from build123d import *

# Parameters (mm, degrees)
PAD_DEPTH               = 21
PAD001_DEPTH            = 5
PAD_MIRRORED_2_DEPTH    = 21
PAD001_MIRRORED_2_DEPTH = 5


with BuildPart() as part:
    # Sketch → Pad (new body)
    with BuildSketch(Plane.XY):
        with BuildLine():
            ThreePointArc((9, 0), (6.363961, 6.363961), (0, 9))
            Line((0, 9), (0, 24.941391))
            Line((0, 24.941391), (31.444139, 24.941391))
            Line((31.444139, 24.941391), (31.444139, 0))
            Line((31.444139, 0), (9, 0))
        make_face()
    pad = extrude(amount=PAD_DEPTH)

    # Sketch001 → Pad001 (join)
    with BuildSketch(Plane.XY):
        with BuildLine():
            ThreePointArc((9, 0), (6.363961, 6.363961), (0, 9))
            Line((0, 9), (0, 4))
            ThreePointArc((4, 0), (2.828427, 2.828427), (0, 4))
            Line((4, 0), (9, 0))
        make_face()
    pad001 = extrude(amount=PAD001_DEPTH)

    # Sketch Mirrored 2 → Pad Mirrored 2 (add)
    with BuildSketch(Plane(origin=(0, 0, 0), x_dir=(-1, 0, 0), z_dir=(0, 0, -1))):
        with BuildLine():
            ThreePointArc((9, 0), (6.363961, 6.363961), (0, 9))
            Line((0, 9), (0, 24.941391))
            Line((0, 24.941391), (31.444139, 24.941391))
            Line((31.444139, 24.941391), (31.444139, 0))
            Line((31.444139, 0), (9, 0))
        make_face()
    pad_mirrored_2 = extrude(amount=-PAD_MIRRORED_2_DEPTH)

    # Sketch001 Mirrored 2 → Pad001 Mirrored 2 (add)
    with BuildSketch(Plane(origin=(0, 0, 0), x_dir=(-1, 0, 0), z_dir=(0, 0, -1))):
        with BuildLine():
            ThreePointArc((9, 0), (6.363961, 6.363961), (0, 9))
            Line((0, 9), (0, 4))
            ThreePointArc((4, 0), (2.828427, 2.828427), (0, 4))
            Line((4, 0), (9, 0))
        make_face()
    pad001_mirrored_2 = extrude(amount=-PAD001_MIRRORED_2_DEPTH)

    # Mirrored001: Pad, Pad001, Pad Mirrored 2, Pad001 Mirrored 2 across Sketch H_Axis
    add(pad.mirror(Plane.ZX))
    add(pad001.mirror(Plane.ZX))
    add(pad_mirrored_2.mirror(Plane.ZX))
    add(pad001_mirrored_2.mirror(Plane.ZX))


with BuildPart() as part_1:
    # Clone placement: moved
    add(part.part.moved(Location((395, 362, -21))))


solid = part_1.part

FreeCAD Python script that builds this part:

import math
import FreeCAD as App
import Part
import Sketcher

V = App.Vector

doc = App.newDocument("Part")
body = doc.addObject("PartDesign::Body", "Body")

# Sketch on XY plane
sketch1 = doc.addObject("Sketcher::SketchObject", "Sketch")
body.addObject(sketch1)
sketch1.AttachmentSupport = (doc.XY_Plane, [""])
sketch1.MapMode = "FlatFace"
sketch1.addGeometry([
    Part.ArcOfCircle(Part.Circle(V(0, 0, 0), V(0, 0, 1), 9), math.radians(0.000001), math.radians(89.999999)),  # 0
    Part.LineSegment(V(9, 0, 0), V(31.444139, 0, 0)),  # 1
    Part.LineSegment(V(31.444139, 0, 0), V(31.444139, 24.941391, 0)),  # 2
    Part.LineSegment(V(31.444139, 24.941391, 0), V(0, 24.941391, 0)),  # 3
    Part.LineSegment(V(0, 24.941391, 0), V(0, 9, 0)),  # 4
], False)
sketch1.addConstraint([
    Sketcher.Constraint("Coincident", 0, 1, 1, 1),
    Sketcher.Constraint("Coincident", 1, 2, 2, 1),
    Sketcher.Constraint("Coincident", 2, 2, 3, 1),
    Sketcher.Constraint("Coincident", 3, 2, 4, 1),
    Sketcher.Constraint("Coincident", 4, 2, 0, 2),
    Sketcher.Constraint("Horizontal", 1),
    Sketcher.Constraint("Vertical", 2),
    Sketcher.Constraint("Horizontal", 3),
    Sketcher.Constraint("Vertical", 4),
    Sketcher.Constraint("Coincident", 0, 3, -1, 1),
    Sketcher.Constraint("PointOnObject", 0, 1, -1),
    Sketcher.Constraint("PointOnObject", 3, 2, -2),
    Sketcher.Constraint("Radius", 0, 9.0),
    Sketcher.Constraint("DistanceX", 1, 1, 1, 2, 22.444139),
    Sketcher.Constraint("DistanceY", 2, 1, 2, 2, 24.941391),
])
pad1 = doc.addObject("PartDesign::Pad", "Pad")
body.addObject(pad1)
pad1.Profile = sketch1
pad1.Length = 21

# Sketch on XY plane
sketch2 = doc.addObject("Sketcher::SketchObject", "Sketch001")
body.addObject(sketch2)
sketch2.AttachmentSupport = (doc.XY_Plane, [""])
sketch2.MapMode = "FlatFace"
sketch2.addGeometry([
    Part.ArcOfCircle(Part.Circle(V(0, 0, 0), V(0, 0, 1), 9), math.radians(0.000001), math.radians(89.999999)),
    Part.LineSegment(V(0, 9, 0), V(0, 4, 0)),
    Part.ArcOfCircle(Part.Circle(V(0, 0, 0), V(0, 0, 1), 4), math.radians(0.000006), math.radians(89.999994)),
    Part.LineSegment(V(4, 0, 0), V(9, 0, 0)),
], False)
sketch2.addConstraint([
    Sketcher.Constraint("Coincident", 0, 2, 1, 1),
    Sketcher.Constraint("Coincident", 1, 2, 2, 2),
    Sketcher.Constraint("Coincident", 2, 1, 3, 1),
    Sketcher.Constraint("Coincident", 3, 2, 0, 1),
    Sketcher.Constraint("Vertical", 1),
    Sketcher.Constraint("Horizontal", 3),
    Sketcher.Constraint("Coincident", 0, 3, -1, 1),
    Sketcher.Constraint("Coincident", 2, 3, -1, 1),
    Sketcher.Constraint("PointOnObject", 0, 2, -2),
    Sketcher.Constraint("PointOnObject", 2, 1, -1),
    Sketcher.Constraint("Radius", 0, 9.0),
    Sketcher.Constraint("Radius", 2, 4.0),
])
pad2 = doc.addObject("PartDesign::Pad", "Pad001")
body.addObject(pad2)
pad2.Profile = sketch2
pad2.Length = 5

# Sketch on XY plane
sketch3 = doc.addObject("Sketcher::SketchObject", "Sketch002")
body.addObject(sketch3)
sketch3.AttachmentSupport = (doc.XY_Plane, [""])
sketch3.MapMode = "FlatFace"
sketch3.addGeometry([
    Part.ArcOfCircle(Part.Circle(V(0, 0, 0), V(0, 0, 1), 9), math.radians(90.000001), math.radians(179.999999)),  # 0
    Part.LineSegment(V(-9, 0, 0), V(-31.444139, 0, 0)),  # 1
    Part.LineSegment(V(-31.444139, 0, 0), V(-31.444139, 24.941391, 0)),  # 2
    Part.LineSegment(V(-31.444139, 24.941391, 0), V(0, 24.941391, 0)),  # 3
    Part.LineSegment(V(0, 24.941391, 0), V(0, 9, 0)),  # 4
], False)
sketch3.addConstraint([
    Sketcher.Constraint("Coincident", 0, 2, 1, 1),
    Sketcher.Constraint("Coincident", 1, 2, 2, 1),
    Sketcher.Constraint("Coincident", 2, 2, 3, 1),
    Sketcher.Constraint("Coincident", 3, 2, 4, 1),
    Sketcher.Constraint("Coincident", 4, 2, 0, 1),
    Sketcher.Constraint("Horizontal", 1),
    Sketcher.Constraint("Vertical", 2),
    Sketcher.Constraint("Horizontal", 3),
    Sketcher.Constraint("Vertical", 4),
    Sketcher.Constraint("Coincident", 0, 3, -1, 1),
    Sketcher.Constraint("PointOnObject", 0, 2, -1),
    Sketcher.Constraint("PointOnObject", 3, 2, -2),
    Sketcher.Constraint("Radius", 0, 9.0),
    Sketcher.Constraint("DistanceX", 1, 2, 1, 1, 22.444139),
    Sketcher.Constraint("DistanceY", 2, 1, 2, 2, 24.941391),
])
pad3 = doc.addObject("PartDesign::Pad", "Pad002")
body.addObject(pad3)
pad3.Profile = sketch3
pad3.Length = 21

# Sketch on XY plane
sketch4 = doc.addObject("Sketcher::SketchObject", "Sketch003")
body.addObject(sketch4)
sketch4.AttachmentSupport = (doc.XY_Plane, [""])
sketch4.MapMode = "FlatFace"
sketch4.addGeometry([
    Part.ArcOfCircle(Part.Circle(V(0, 0, 0), V(0, 0, 1), 9), math.radians(90.000001), math.radians(179.999999)),
    Part.LineSegment(V(0, 9, 0), V(0, 4, 0)),
    Part.ArcOfCircle(Part.Circle(V(0, 0, 0), V(0, 0, 1), 4), math.radians(90.000006), math.radians(179.999994)),
    Part.LineSegment(V(-4, 0, 0), V(-9, 0, 0)),
], False)
sketch4.addConstraint([
    Sketcher.Constraint("Coincident", 0, 1, 1, 1),
    Sketcher.Constraint("Coincident", 1, 2, 2, 1),
    Sketcher.Constraint("Coincident", 2, 2, 3, 1),
    Sketcher.Constraint("Coincident", 3, 2, 0, 2),
    Sketcher.Constraint("Vertical", 1),
    Sketcher.Constraint("Horizontal", 3),
    Sketcher.Constraint("Coincident", 0, 3, -1, 1),
    Sketcher.Constraint("Coincident", 2, 3, -1, 1),
    Sketcher.Constraint("PointOnObject", 0, 1, -2),
    Sketcher.Constraint("PointOnObject", 2, 2, -1),
    Sketcher.Constraint("Radius", 0, 9.0),
    Sketcher.Constraint("Radius", 2, 4.0),
])
pad4 = doc.addObject("PartDesign::Pad", "Pad003")
body.addObject(pad4)
pad4.Profile = sketch4
pad4.Length = 5
doc.recompute()

mirrored = doc.addObject("PartDesign::Mirrored", "Mirrored")
body.addObject(mirrored)
mirrored.Originals = [pad1, pad2, pad3, pad4]
mirrored.MirrorPlane = (doc.XZ_Plane, [""])
body.Tip = mirrored
body2 = doc.addObject("PartDesign::Body", "Body001")
doc.recompute()

body.Placement = App.Placement(V(395, 362, -21), App.Rotation(V(0, 0, 1), 0))
boolean = doc.addObject("PartDesign::Boolean", "Boolean")
body2.addObject(boolean)
boolean.Type = "Fuse"
boolean.addObjects([body])

doc.recompute()
